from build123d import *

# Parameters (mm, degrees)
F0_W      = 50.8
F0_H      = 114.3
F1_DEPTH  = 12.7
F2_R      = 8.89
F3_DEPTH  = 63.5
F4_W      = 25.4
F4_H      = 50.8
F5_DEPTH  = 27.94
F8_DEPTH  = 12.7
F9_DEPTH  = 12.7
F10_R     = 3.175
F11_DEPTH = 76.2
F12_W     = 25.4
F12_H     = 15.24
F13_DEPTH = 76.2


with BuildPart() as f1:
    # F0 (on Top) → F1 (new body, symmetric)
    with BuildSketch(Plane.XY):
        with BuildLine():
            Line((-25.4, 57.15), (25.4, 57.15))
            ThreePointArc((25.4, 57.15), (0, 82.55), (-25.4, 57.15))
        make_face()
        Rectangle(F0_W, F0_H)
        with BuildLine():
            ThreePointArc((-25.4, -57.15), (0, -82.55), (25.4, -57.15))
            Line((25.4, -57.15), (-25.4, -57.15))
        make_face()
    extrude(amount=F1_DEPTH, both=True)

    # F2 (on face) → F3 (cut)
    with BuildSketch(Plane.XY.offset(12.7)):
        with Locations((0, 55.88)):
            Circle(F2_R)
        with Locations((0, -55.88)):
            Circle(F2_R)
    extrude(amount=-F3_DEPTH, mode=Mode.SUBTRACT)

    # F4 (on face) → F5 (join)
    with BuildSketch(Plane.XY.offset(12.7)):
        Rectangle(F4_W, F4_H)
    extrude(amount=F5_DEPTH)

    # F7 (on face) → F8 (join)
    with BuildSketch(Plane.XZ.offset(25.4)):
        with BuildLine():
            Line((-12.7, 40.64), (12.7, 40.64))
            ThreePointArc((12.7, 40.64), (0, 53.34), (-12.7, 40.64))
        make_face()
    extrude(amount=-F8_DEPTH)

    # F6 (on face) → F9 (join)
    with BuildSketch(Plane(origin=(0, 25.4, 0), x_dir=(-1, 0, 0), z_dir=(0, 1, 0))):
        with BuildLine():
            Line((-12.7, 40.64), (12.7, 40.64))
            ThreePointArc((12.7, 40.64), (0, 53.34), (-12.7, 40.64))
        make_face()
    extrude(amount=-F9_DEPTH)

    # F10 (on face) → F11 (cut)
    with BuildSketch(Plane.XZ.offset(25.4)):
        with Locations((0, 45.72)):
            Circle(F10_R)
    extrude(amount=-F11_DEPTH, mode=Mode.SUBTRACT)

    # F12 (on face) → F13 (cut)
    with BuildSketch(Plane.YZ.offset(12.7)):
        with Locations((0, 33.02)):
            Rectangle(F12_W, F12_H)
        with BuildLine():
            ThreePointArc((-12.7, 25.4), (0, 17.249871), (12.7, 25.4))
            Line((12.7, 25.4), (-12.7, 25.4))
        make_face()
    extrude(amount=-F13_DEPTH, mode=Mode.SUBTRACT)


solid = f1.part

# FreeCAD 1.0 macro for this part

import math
import FreeCAD as App
import Part
import Sketcher

V = App.Vector
Q = App.Units.Quantity

doc = App.newDocument("Part")
body = doc.addObject("PartDesign::Body", "Body")

sketch1 = body.newObject("Sketcher::SketchObject", "Sketch")
sketch1.AttachmentSupport = (doc.getObject("XY_Plane"), [""])
sketch1.MapMode = "FlatFace"
sketch1.addGeometry(Part.ArcOfCircle(Part.Circle(V(0, 57.15, 0), V(0, 0, 1), 25.4), math.radians(0), math.radians(180)), False)
sketch1.addGeometry(Part.LineSegment(V(-25.4, 57.15, 0), V(-25.4, -57.15, 0)), False)
sketch1.addGeometry(Part.ArcOfCircle(Part.Circle(V(0, -57.15, 0), V(0, 0, 1), 25.4), math.radians(180), math.radians(360)), False)
sketch1.addGeometry(Part.LineSegment(V(25.4, -57.15, 0), V(25.4, 57.15, 0)), False)
sketch1.addConstraint(Sketcher.Constraint("Tangent", 0, 2, 1, 1))
sketch1.addConstraint(Sketcher.Constraint("Tangent", 1, 2, 2, 1))
sketch1.addConstraint(Sketcher.Constraint("Tangent", 2, 2, 3, 1))
sketch1.addConstraint(Sketcher.Constraint("Tangent", 3, 2, 0, 1))
sketch1.addConstraint(Sketcher.Constraint("Vertical", 1))
sketch1.addConstraint(Sketcher.Constraint("Vertical", 3))
sketch1.addConstraint(Sketcher.Constraint("Symmetric", 0, 3, 2, 3, -1, 1))
sketch1.addConstraint(Sketcher.Constraint("Radius", 0, Q("1 in")))
sketch1.addConstraint(Sketcher.Constraint("DistanceY", 1, 2, 1, 1, Q("4.5 in")))
pad1 = body.newObject("PartDesign::Pad", "Pad")
pad1.Profile = sketch1
pad1.Length = Q("1 in")
pad1.Midplane = True

sketch2 = body.newObject("Sketcher::SketchObject", "Sketch001")
sketch2.AttachmentSupport = (doc.getObject("XY_Plane"), [""])
sketch2.MapMode = "FlatFace"
sketch2.AttachmentOffset = App.Placement(V(0, 0, 0.5 * 25.4), App.Rotation())
sketch2.addGeometry(Part.Circle(V(0, 55.88, 0), V(0, 0, 1), 8.89), False)
sketch2.addGeometry(Part.Circle(V(0, -55.88, 0), V(0, 0, 1), 8.89), False)
sketch2.addConstraint(Sketcher.Constraint("Equal", 0, 1))
sketch2.addConstraint(Sketcher.Constraint("Symmetric", 0, 3, 1, 3, -1, 1))
sketch2.addConstraint(Sketcher.Constraint("PointOnObject", 0, 3, -2))
sketch2.addConstraint(Sketcher.Constraint("Diameter", 0, Q("0.7 in")))
sketch2.addConstraint(Sketcher.Constraint("DistanceY", -1, 1, 0, 3, Q("2.2 in")))
pocket1 = body.newObject("PartDesign::Pocket", "Pocket")
pocket1.Profile = sketch2
pocket1.Length = Q("2.5 in")

sketch3 = body.newObject("Sketcher::SketchObject", "Sketch002")
sketch3.AttachmentSupport = (doc.getObject("XY_Plane"), [""])
sketch3.MapMode = "FlatFace"
sketch3.AttachmentOffset = App.Placement(V(0, 0, 0.5 * 25.4), App.Rotation())
sketch3.addGeometry(Part.LineSegment(V(-12.7, 25.4, 0), V(-12.7, -25.4, 0)), False)
sketch3.addGeometry(Part.LineSegment(V(-12.7, -25.4, 0), V(12.7, -25.4, 0)), False)
sketch3.addGeometry(Part.LineSegment(V(12.7, -25.4, 0), V(12.7, 25.4, 0)), False)
sketch3.addGeometry(Part.LineSegment(V(12.7, 25.4, 0), V(-12.7, 25.4, 0)), False)
sketch3.addConstraint(Sketcher.Constraint("Coincident", 0, 2, 1, 1))
sketch3.addConstraint(Sketcher.Constraint("Coincident", 1, 2, 2, 1))
sketch3.addConstraint(Sketcher.Constraint("Coincident", 2, 2, 3, 1))
sketch3.addConstraint(Sketcher.Constraint("Coincident", 3, 2, 0, 1))
sketch3.addConstraint(Sketcher.Constraint("Vertical", 0))
sketch3.addConstraint(Sketcher.Constraint("Horizontal", 1))
sketch3.addConstraint(Sketcher.Constraint("Vertical", 2))
sketch3.addConstraint(Sketcher.Constraint("Horizontal", 3))
sketch3.addConstraint(Sketcher.Constraint("Symmetric", 0, 2, 2, 2, -1, 1))
sketch3.addConstraint(Sketcher.Constraint("DistanceX", 1, 1, 1, 2, Q("1 in")))
sketch3.addConstraint(Sketcher.Constraint("DistanceY", 0, 2, 0, 1, Q("2 in")))
pad2 = body.newObject("PartDesign::Pad", "Pad001")
pad2.Profile = sketch3
pad2.Length = Q("1.1 in")

sketch4 = body.newObject("Sketcher::SketchObject", "Sketch003")
sketch4.AttachmentSupport = (doc.getObject("XZ_Plane"), [""])
sketch4.MapMode = "FlatFace"
sketch4.AttachmentOffset = App.Placement(V(0, 0, 1 * 25.4), App.Rotation())
sketch4.addGeometry(Part.LineSegment(V(-12.7, 40.64, 0), V(12.7, 40.64, 0)), False)
sketch4.addGeometry(Part.ArcOfCircle(Part.Circle(V(0, 40.64, 0), V(0, 0, 1), 12.7), math.radians(0), math.radians(180)), False)
sketch4.addConstraint(Sketcher.Constraint("Coincident", 0, 1, 1, 2))
sketch4.addConstraint(Sketcher.Constraint("Coincident", 1, 1, 0, 2))
sketch4.addConstraint(Sketcher.Constraint("Horizontal", 0))
sketch4.addConstraint(Sketcher.Constraint("PointOnObject", 1, 3, -2))
sketch4.addConstraint(Sketcher.Constraint("Horizontal", 1, 3, 0, 1))
sketch4.addConstraint(Sketcher.Constraint("Radius", 1, Q("0.5 in")))
sketch4.addConstraint(Sketcher.Constraint("DistanceY", -1, 1, 1, 3, Q("1.6 in")))
pad3 = body.newObject("PartDesign::Pad", "Pad002")
pad3.Profile = sketch4
pad3.Length = Q("0.5 in")
pad3.Reversed = True

sketch5 = body.newObject("Sketcher::SketchObject", "Sketch004")
sketch5.AttachmentSupport = (doc.getObject("XZ_Plane"), [""])
sketch5.MapMode = "FlatFace"
sketch5.AttachmentOffset = App.Placement(V(0, 0, -1 * 25.4), App.Rotation())
sketch5.addGeometry(Part.LineSegment(V(12.7, 40.64, 0), V(-12.7, 40.64, 0)), False)
sketch5.addGeometry(Part.ArcOfCircle(Part.Circle(V(0, 40.64, 0), V(0, 0, 1), 12.7), math.radians(0), math.radians(180)), False)
sketch5.addConstraint(Sketcher.Constraint("Coincident", 0, 1, 1, 1))
sketch5.addConstraint(Sketcher.Constraint("Coincident", 1, 2, 0, 2))
sketch5.addConstraint(Sketcher.Constraint("Horizontal", 0))
sketch5.addConstraint(Sketcher.Constraint("PointOnObject", 1, 3, -2))
sketch5.addConstraint(Sketcher.Constraint("Horizontal", 1, 3, 0, 1))
sketch5.addConstraint(Sketcher.Constraint("Radius", 1, Q("0.5 in")))
sketch5.addConstraint(Sketcher.Constraint("DistanceY", -1, 1, 1, 3, Q("1.6 in")))
pad4 = body.newObject("PartDesign::Pad", "Pad003")
pad4.Profile = sketch5
pad4.Length = Q("0.5 in")

sketch6 = body.newObject("Sketcher::SketchObject", "Sketch005")
sketch6.AttachmentSupport = (doc.getObject("XZ_Plane"), [""])
sketch6.MapMode = "FlatFace"
sketch6.AttachmentOffset = App.Placement(V(0, 0, 1 * 25.4), App.Rotation())
sketch6.addGeometry(Part.Circle(V(0, 45.72, 0), V(0, 0, 1), 3.175), False)
sketch6.addConstraint(Sketcher.Constraint("PointOnObject", 0, 3, -2))
sketch6.addConstraint(Sketcher.Constraint("Diameter", 0, Q("0.25 in")))
sketch6.addConstraint(Sketcher.Constraint("DistanceY", -1, 1, 0, 3, Q("1.8 in")))
pocket2 = body.newObject("PartDesign::Pocket", "Pocket001")
pocket2.Profile = sketch6
pocket2.Length = Q("3 in")

sketch7 = body.newObject("Sketcher::SketchObject", "Sketch006")
sketch7.AttachmentSupport = (doc.getObject("YZ_Plane"), [""])
sketch7.MapMode = "FlatFace"
sketch7.AttachmentOffset = App.Placement(V(0, 0, 0.5 * 25.4), App.Rotation())
sketch7.addGeometry(Part.LineSegment(V(-12.7, 40.64, 0), V(-12.7, 25.4, 0)), False)
sketch7.addGeometry(Part.ArcOfCircle(Part.Circle(V(0, 31.219871, 0), V(0, 0, 1), 13.97), math.radians(-155.380024), math.radians(-24.619976)), False)
sketch7.addGeometry(Part.LineSegment(V(12.7, 25.4, 0), V(12.7, 40.64, 0)), False)
sketch7.addGeometry(Part.LineSegment(V(12.7, 40.64, 0), V(-12.7, 40.64, 0)), False)
sketch7.addConstraint(Sketcher.Constraint("Coincident", 0, 2, 1, 1))
sketch7.addConstraint(Sketcher.Constraint("Coincident", 1, 2, 2, 1))
sketch7.addConstraint(Sketcher.Constraint("Coincident", 2, 2, 3, 1))
sketch7.addConstraint(Sketcher.Constraint("Coincident", 3, 2, 0, 1))
sketch7.addConstraint(Sketcher.Constraint("Vertical", 0))
sketch7.addConstraint(Sketcher.Constraint("Vertical", 2))
sketch7.addConstraint(Sketcher.Constraint("Horizontal", 3))
sketch7.addConstraint(Sketcher.Constraint("Symmetric", 0, 2, 1, 2, -2))
sketch7.addConstraint(Sketcher.Constraint("DistanceX", 3, 2, 3, 1, Q("1 in")))
sketch7.addConstraint(Sketcher.Constraint("Radius", 1, Q("0.55 in")))
sketch7.addConstraint(Sketcher.Constraint("DistanceY", 0, 2, 0, 1, Q("0.6 in")))
sketch7.addConstraint(Sketcher.Constraint("DistanceY", -1, 1, 0, 2, Q("1 in")))
pocket3 = body.newObject("PartDesign::Pocket", "Pocket002")
pocket3.Profile = sketch7
pocket3.Length = Q("3 in")

doc.recompute()
